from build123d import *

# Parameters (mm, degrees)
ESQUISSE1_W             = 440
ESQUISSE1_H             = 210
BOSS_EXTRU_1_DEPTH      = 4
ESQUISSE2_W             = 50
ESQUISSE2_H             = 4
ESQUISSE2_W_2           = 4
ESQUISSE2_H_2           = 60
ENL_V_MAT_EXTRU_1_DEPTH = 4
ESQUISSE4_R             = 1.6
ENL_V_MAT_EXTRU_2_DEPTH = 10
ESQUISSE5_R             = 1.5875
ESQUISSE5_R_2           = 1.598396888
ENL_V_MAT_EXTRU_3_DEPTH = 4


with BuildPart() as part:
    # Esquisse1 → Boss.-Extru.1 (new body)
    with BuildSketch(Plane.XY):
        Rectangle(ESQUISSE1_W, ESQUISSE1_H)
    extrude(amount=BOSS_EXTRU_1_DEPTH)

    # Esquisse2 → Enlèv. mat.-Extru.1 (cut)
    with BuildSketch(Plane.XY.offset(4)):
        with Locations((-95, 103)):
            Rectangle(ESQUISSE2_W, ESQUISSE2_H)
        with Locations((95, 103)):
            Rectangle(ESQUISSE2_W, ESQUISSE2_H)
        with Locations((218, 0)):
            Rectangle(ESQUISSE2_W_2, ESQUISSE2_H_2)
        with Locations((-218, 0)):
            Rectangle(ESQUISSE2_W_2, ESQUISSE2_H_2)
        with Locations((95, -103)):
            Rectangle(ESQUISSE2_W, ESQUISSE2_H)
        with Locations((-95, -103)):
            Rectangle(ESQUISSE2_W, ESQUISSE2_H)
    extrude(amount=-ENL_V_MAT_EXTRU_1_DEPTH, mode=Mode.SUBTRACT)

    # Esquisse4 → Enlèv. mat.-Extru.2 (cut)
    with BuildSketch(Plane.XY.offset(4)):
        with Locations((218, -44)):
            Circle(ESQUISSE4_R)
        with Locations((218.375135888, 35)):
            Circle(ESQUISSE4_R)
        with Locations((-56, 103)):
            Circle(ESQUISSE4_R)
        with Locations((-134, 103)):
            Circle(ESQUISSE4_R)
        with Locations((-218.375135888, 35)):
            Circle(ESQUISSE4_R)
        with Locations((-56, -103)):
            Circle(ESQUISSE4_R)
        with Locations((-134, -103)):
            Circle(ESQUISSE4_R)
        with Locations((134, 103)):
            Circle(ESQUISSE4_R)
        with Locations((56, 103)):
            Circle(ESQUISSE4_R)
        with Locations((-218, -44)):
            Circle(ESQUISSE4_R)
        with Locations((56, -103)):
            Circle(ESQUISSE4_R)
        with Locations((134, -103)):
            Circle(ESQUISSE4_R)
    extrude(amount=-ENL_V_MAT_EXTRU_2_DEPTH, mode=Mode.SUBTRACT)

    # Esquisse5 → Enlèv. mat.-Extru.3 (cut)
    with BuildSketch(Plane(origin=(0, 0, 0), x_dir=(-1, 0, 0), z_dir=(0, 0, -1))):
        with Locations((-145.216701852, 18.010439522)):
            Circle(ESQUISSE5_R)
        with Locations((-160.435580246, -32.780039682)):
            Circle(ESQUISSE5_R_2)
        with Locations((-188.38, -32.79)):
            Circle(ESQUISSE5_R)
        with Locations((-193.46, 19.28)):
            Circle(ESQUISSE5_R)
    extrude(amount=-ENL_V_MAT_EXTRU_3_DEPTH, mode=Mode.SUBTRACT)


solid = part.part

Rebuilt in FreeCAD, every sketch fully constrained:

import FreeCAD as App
import Part
import Sketcher
from FreeCAD import Vector
Q = App.Units.Quantity


def add_polygon(sketch, points):
    """Adds a closed chain of lines whose ends are joined by coincident constraints."""
    first, n = sketch.GeometryCount, len(points)
    for a, b in zip(points, points[1:] + points[:1]):
        sketch.addGeometry(Part.LineSegment(App.Vector(*a, 0), App.Vector(*b, 0)), False)
    for i in range(n):
        sketch.addConstraint(Sketcher.Constraint("Coincident", first + i, 2, first + (i + 1) % n, 1))

doc = App.newDocument("Part")
body = doc.addObject("PartDesign::Body", "Body")

# Sketch on XY plane
sketch1 = body.newObject("Sketcher::SketchObject", "Sketch")
sketch1.AttachmentSupport = (doc.getObject("XY_Plane"), [""])
sketch1.MapMode = "FlatFace"
add_polygon(sketch1, [(-220, 105), (-220, -105), (220, -105), (220, 105)])  # lines 0-3
sketch1.addConstraint(Sketcher.Constraint("Vertical", 0))
sketch1.addConstraint(Sketcher.Constraint("Horizontal", 1))
sketch1.addConstraint(Sketcher.Constraint("Vertical", 2))
sketch1.addConstraint(Sketcher.Constraint("Horizontal", 3))
sketch1.addConstraint(Sketcher.Constraint("Symmetric", 0, 2, 2, 2, -1, 1))
sketch1.addConstraint(Sketcher.Constraint("DistanceX", 1, 1, 1, 2, Q("440 mm")))
sketch1.addConstraint(Sketcher.Constraint("DistanceY", 0, 2, 0, 1, Q("210 mm")))
pad1 = body.newObject("PartDesign::Pad", "Pad")
pad1.Profile = sketch1
pad1.Length = 4

# Sketch on XY plane
sketch2 = body.newObject("Sketcher::SketchObject", "Sketch001")
sketch2.AttachmentSupport = (doc.getObject("XY_Plane"), [""])
sketch2.MapMode = "FlatFace"
sketch2.AttachmentOffset = App.Placement(Vector(0, 0, 4), App.Rotation())
add_polygon(sketch2, [(-120, 105), (-120, 101), (-70, 101), (-70, 105)])  # lines 0-3
add_polygon(sketch2, [(70, 105), (70, 101), (120, 101), (120, 105)])  # lines 4-7
add_polygon(sketch2, [(216, 30), (216, -30), (220, -30), (220, 30)])  # lines 8-11
add_polygon(sketch2, [(-220, 30), (-220, -30), (-216, -30), (-216, 30)])  # lines 12-15
add_polygon(sketch2, [(70, -101), (70, -105), (120, -105), (120, -101)])  # lines 16-19
add_polygon(sketch2, [(-120, -101), (-120, -105), (-70, -105), (-70, -101)])  # lines 20-23
sketch2.addConstraint(Sketcher.Constraint("Vertical", 0))
sketch2.addConstraint(Sketcher.Constraint("Horizontal", 1))
sketch2.addConstraint(Sketcher.Constraint("Vertical", 2))
sketch2.addConstraint(Sketcher.Constraint("Horizontal", 3))
sketch2.addConstraint(Sketcher.Constraint("Vertical", 4))
sketch2.addConstraint(Sketcher.Constraint("Horizontal", 5))
sketch2.addConstraint(Sketcher.Constraint("Vertical", 6))
sketch2.addConstraint(Sketcher.Constraint("Horizontal", 7))
sketch2.addConstraint(Sketcher.Constraint("Vertical", 8))
sketch2.addConstraint(Sketcher.Constraint("Horizontal", 9))
sketch2.addConstraint(Sketcher.Constraint("Vertical", 10))
sketch2.addConstraint(Sketcher.Constraint("Horizontal", 11))
sketch2.addConstraint(Sketcher.Constraint("Vertical", 12))
sketch2.addConstraint(Sketcher.Constraint("Horizontal", 13))
sketch2.addConstraint(Sketcher.Constraint("Vertical", 14))
sketch2.addConstraint(Sketcher.Constraint("Horizontal", 15))
sketch2.addConstraint(Sketcher.Constraint("Vertical", 16))
sketch2.addConstraint(Sketcher.Constraint("Horizontal", 17))
sketch2.addConstraint(Sketcher.Constraint("Vertical", 18))
sketch2.addConstraint(Sketcher.Constraint("Horizontal", 19))
sketch2.addConstraint(Sketcher.Constraint("Vertical", 20))
sketch2.addConstraint(Sketcher.Constraint("Horizontal", 21))
sketch2.addConstraint(Sketcher.Constraint("Vertical", 22))
sketch2.addConstraint(Sketcher.Constraint("Horizontal", 23))
sketch2.addConstraint(Sketcher.Constraint("Symmetric", 10, 2, 12, 2, -1, 1))
sketch2.addConstraint(Sketcher.Constraint("Symmetric", 8, 2, 14, 2, -1, 1))
sketch2.addConstraint(Sketcher.Constraint("Symmetric", 2, 2, 16, 2, -1, 1))
sketch2.addConstraint(Sketcher.Constraint("Symmetric", 0, 2, 18, 2, -1, 1))
sketch2.addConstraint(Sketcher.Constraint("Symmetric", 6, 2, 20, 2, -1, 1))
sketch2.addConstraint(Sketcher.Constraint("Symmetric", 4, 2, 22, 2, -1, 1))
sketch2.addConstraint(Sketcher.Constraint("Symmetric", 1, 2, 4, 2, -2))
sketch2.addConstraint(Sketcher.Constraint("Symmetric", 3, 2, 6, 2, -2))
sketch2.addConstraint(Sketcher.Constraint("Horizontal", 9, 2, 12, 2))
sketch2.addConstraint(Sketcher.Constraint("Equal", 15, 0))
sketch2.addConstraint(Sketcher.Constraint("DistanceX", 1, 1, 1, 2, Q("50 mm")))
sketch2.addConstraint(Sketcher.Constraint("DistanceX", 9, 1, 9, 2, Q("4 mm")))
sketch2.addConstraint(Sketcher.Constraint("DistanceY", 8, 2, 8, 1, Q("60 mm")))
sketch2.addConstraint(Sketcher.Constraint("DistanceX", 0, 2, -1, 1, Q("120 mm")))
sketch2.addConstraint(Sketcher.Constraint("DistanceY", -1, 1, 0, 2, Q("101 mm")))
sketch2.addConstraint(Sketcher.Constraint("DistanceX", -1, 1, 8, 2, Q("216 mm")))
pocket1 = body.newObject("PartDesign::Pocket", "Pocket")
pocket1.Profile = sketch2
pocket1.Length = 4

# Sketch on XY plane
sketch3 = body.newObject("Sketcher::SketchObject", "Sketch002")
sketch3.AttachmentSupport = (doc.getObject("XY_Plane"), [""])
sketch3.MapMode = "FlatFace"
sketch3.AttachmentOffset = App.Placement(Vector(0, 0, 4), App.Rotation())
sketch3.addGeometry(Part.Circle(Vector(218, -44, 0), Vector(0, 0, 1), 1.6), False)
sketch3.addGeometry(Part.Circle(Vector(218.375136, 35, 0), Vector(0, 0, 1), 1.6), False)
sketch3.addGeometry(Part.Circle(Vector(-56, 103, 0), Vector(0, 0, 1), 1.6), False)
sketch3.addGeometry(Part.Circle(Vector(-134, 103, 0), Vector(0, 0, 1), 1.6), False)
sketch3.addGeometry(Part.Circle(Vector(-218.375136, 35, 0), Vector(0, 0, 1), 1.6), False)
sketch3.addGeometry(Part.Circle(Vector(-56, -103, 0), Vector(0, 0, 1), 1.6), False)
sketch3.addGeometry(Part.Circle(Vector(-134, -103, 0), Vector(0, 0, 1), 1.6), False)
sketch3.addGeometry(Part.Circle(Vector(134, 103, 0), Vector(0, 0, 1), 1.6), False)
sketch3.addGeometry(Part.Circle(Vector(56, 103, 0), Vector(0, 0, 1), 1.6), False)
sketch3.addGeometry(Part.Circle(Vector(-218, -44, 0), Vector(0, 0, 1), 1.6), False)
sketch3.addGeometry(Part.Circle(Vector(56, -103, 0), Vector(0, 0, 1), 1.6), False)
sketch3.addGeometry(Part.Circle(Vector(134, -103, 0), Vector(0, 0, 1), 1.6), False)
sketch3.addConstraint(Sketcher.Constraint("Equal", 0, 1))
sketch3.addConstraint(Sketcher.Constraint("Equal", 1, 2))
sketch3.addConstraint(Sketcher.Constraint("Equal", 2, 3))
sketch3.addConstraint(Sketcher.Constraint("Equal", 3, 4))
sketch3.addConstraint(Sketcher.Constraint("Equal", 4, 5))
sketch3.addConstraint(Sketcher.Constraint("Equal", 5, 6))
sketch3.addConstraint(Sketcher.Constraint("Equal", 6, 7))
sketch3.addConstraint(Sketcher.Constraint("Equal", 7, 8))
sketch3.addConstraint(Sketcher.Constraint("Equal", 8, 9))
sketch3.addConstraint(Sketcher.Constraint("Equal", 9, 10))
sketch3.addConstraint(Sketcher.Constraint("Equal", 10, 11))
sketch3.addConstraint(Sketcher.Constraint("Symmetric", 6, 3, 7, 3, -1, 1))
sketch3.addConstraint(Sketcher.Constraint("Symmetric", 5, 3, 8, 3, -1, 1))
sketch3.addConstraint(Sketcher.Constraint("Symmetric", 2, 3, 10, 3, -1, 1))
sketch3.addConstraint(Sketcher.Constraint("Symmetric", 3, 3, 11, 3, -1, 1))
sketch3.addConstraint(Sketcher.Constraint("Symmetric", 1, 3, 4, 3, -2))
sketch3.addConstraint(Sketcher.Constraint("Symmetric", 3, 3, 7, 3, -2))
sketch3.addConstraint(Sketcher.Constraint("Symmetric", 2, 3, 8, 3, -2))
sketch3.addConstraint(Sketcher.Constraint("Symmetric", 0, 3, 9, 3, -2))
sketch3.addConstraint(Sketcher.Constraint("Horizontal", 2, 3, 3, 3))
sketch3.addConstraint(Sketcher.Constraint("Diameter", 0, Q("3.2 mm")))
sketch3.addConstraint(Sketcher.Constraint("DistanceX", -1, 1, 0, 3, Q("218 mm")))
sketch3.addConstraint(Sketcher.Constraint("DistanceY", 0, 3, -1, 1, Q("44 mm")))
sketch3.addConstraint(Sketcher.Constraint("DistanceY", -1, 1, 1, 3, Q("35 mm")))
sketch3.addConstraint(Sketcher.Constraint("DistanceX", 2, 3, -1, 1, Q("56 mm")))
sketch3.addConstraint(Sketcher.Constraint("DistanceY", -1, 1, 2, 3, Q("103 mm")))
sketch3.addConstraint(Sketcher.Constraint("DistanceX", 3, 3, -1, 1, Q("134 mm")))
sketch3.addConstraint(Sketcher.Constraint("DistanceX", 4, 3, 1, 3, Q("436.750272 mm")))
pocket2 = body.newObject("PartDesign::Pocket", "Pocket001")
pocket2.Profile = sketch3
pocket2.Length = 10

# Sketch on XY plane
sketch4 = body.newObject("Sketcher::SketchObject", "Sketch003")
sketch4.AttachmentSupport = (doc.getObject("XY_Plane"), [""])
sketch4.MapMode = "FlatFace"
sketch4.addGeometry(Part.Circle(Vector(145.216702, 18.01044, 0), Vector(0, 0, 1), 1.5875), False)
sketch4.addGeometry(Part.Circle(Vector(160.43558, -32.78004, 0), Vector(0, 0, 1), 1.598397), False)
sketch4.addGeometry(Part.Circle(Vector(188.38, -32.79, 0), Vector(0, 0, 1), 1.5875), False)
sketch4.addGeometry(Part.Circle(Vector(193.46, 19.28, 0), Vector(0, 0, 1), 1.5875), False)
sketch4.addConstraint(Sketcher.Constraint("Equal", 0, 2))
sketch4.addConstraint(Sketcher.Constraint("Equal", 2, 3))
sketch4.addConstraint(Sketcher.Constraint("Diameter", 0, Q("3.175 mm")))
sketch4.addConstraint(Sketcher.Constraint("DistanceX", -1, 1, 2, 3, Q("188.38 mm")))
sketch4.addConstraint(Sketcher.Constraint("DistanceY", 2, 3, -1, 1, Q("32.79 mm")))
sketch4.addConstraint(Sketcher.Constraint("DistanceX", -1, 1, 3, 3, Q("193.46 mm")))
sketch4.addConstraint(Sketcher.Constraint("DistanceY", -1, 1, 3, 3, Q("19.28 mm")))
sketch4.addConstraint(Sketcher.Constraint("Diameter", 1, Q("3.196794 mm")))
sketch4.addConstraint(Sketcher.Constraint("DistanceX", -1, 1, 0, 3, Q("145.216702 mm")))
sketch4.addConstraint(Sketcher.Constraint("DistanceY", -1, 1, 0, 3, Q("18.01044 mm")))
sketch4.addConstraint(Sketcher.Constraint("DistanceX", -1, 1, 1, 3, Q("160.43558 mm")))
sketch4.addConstraint(Sketcher.Constraint("DistanceY", 1, 3, -1, 1, Q("32.78004 mm")))
pocket3 = body.newObject("PartDesign::Pocket", "Pocket002")
pocket3.Profile = sketch4
pocket3.Length = 4
pocket3.Reversed = True

doc.recompute()
